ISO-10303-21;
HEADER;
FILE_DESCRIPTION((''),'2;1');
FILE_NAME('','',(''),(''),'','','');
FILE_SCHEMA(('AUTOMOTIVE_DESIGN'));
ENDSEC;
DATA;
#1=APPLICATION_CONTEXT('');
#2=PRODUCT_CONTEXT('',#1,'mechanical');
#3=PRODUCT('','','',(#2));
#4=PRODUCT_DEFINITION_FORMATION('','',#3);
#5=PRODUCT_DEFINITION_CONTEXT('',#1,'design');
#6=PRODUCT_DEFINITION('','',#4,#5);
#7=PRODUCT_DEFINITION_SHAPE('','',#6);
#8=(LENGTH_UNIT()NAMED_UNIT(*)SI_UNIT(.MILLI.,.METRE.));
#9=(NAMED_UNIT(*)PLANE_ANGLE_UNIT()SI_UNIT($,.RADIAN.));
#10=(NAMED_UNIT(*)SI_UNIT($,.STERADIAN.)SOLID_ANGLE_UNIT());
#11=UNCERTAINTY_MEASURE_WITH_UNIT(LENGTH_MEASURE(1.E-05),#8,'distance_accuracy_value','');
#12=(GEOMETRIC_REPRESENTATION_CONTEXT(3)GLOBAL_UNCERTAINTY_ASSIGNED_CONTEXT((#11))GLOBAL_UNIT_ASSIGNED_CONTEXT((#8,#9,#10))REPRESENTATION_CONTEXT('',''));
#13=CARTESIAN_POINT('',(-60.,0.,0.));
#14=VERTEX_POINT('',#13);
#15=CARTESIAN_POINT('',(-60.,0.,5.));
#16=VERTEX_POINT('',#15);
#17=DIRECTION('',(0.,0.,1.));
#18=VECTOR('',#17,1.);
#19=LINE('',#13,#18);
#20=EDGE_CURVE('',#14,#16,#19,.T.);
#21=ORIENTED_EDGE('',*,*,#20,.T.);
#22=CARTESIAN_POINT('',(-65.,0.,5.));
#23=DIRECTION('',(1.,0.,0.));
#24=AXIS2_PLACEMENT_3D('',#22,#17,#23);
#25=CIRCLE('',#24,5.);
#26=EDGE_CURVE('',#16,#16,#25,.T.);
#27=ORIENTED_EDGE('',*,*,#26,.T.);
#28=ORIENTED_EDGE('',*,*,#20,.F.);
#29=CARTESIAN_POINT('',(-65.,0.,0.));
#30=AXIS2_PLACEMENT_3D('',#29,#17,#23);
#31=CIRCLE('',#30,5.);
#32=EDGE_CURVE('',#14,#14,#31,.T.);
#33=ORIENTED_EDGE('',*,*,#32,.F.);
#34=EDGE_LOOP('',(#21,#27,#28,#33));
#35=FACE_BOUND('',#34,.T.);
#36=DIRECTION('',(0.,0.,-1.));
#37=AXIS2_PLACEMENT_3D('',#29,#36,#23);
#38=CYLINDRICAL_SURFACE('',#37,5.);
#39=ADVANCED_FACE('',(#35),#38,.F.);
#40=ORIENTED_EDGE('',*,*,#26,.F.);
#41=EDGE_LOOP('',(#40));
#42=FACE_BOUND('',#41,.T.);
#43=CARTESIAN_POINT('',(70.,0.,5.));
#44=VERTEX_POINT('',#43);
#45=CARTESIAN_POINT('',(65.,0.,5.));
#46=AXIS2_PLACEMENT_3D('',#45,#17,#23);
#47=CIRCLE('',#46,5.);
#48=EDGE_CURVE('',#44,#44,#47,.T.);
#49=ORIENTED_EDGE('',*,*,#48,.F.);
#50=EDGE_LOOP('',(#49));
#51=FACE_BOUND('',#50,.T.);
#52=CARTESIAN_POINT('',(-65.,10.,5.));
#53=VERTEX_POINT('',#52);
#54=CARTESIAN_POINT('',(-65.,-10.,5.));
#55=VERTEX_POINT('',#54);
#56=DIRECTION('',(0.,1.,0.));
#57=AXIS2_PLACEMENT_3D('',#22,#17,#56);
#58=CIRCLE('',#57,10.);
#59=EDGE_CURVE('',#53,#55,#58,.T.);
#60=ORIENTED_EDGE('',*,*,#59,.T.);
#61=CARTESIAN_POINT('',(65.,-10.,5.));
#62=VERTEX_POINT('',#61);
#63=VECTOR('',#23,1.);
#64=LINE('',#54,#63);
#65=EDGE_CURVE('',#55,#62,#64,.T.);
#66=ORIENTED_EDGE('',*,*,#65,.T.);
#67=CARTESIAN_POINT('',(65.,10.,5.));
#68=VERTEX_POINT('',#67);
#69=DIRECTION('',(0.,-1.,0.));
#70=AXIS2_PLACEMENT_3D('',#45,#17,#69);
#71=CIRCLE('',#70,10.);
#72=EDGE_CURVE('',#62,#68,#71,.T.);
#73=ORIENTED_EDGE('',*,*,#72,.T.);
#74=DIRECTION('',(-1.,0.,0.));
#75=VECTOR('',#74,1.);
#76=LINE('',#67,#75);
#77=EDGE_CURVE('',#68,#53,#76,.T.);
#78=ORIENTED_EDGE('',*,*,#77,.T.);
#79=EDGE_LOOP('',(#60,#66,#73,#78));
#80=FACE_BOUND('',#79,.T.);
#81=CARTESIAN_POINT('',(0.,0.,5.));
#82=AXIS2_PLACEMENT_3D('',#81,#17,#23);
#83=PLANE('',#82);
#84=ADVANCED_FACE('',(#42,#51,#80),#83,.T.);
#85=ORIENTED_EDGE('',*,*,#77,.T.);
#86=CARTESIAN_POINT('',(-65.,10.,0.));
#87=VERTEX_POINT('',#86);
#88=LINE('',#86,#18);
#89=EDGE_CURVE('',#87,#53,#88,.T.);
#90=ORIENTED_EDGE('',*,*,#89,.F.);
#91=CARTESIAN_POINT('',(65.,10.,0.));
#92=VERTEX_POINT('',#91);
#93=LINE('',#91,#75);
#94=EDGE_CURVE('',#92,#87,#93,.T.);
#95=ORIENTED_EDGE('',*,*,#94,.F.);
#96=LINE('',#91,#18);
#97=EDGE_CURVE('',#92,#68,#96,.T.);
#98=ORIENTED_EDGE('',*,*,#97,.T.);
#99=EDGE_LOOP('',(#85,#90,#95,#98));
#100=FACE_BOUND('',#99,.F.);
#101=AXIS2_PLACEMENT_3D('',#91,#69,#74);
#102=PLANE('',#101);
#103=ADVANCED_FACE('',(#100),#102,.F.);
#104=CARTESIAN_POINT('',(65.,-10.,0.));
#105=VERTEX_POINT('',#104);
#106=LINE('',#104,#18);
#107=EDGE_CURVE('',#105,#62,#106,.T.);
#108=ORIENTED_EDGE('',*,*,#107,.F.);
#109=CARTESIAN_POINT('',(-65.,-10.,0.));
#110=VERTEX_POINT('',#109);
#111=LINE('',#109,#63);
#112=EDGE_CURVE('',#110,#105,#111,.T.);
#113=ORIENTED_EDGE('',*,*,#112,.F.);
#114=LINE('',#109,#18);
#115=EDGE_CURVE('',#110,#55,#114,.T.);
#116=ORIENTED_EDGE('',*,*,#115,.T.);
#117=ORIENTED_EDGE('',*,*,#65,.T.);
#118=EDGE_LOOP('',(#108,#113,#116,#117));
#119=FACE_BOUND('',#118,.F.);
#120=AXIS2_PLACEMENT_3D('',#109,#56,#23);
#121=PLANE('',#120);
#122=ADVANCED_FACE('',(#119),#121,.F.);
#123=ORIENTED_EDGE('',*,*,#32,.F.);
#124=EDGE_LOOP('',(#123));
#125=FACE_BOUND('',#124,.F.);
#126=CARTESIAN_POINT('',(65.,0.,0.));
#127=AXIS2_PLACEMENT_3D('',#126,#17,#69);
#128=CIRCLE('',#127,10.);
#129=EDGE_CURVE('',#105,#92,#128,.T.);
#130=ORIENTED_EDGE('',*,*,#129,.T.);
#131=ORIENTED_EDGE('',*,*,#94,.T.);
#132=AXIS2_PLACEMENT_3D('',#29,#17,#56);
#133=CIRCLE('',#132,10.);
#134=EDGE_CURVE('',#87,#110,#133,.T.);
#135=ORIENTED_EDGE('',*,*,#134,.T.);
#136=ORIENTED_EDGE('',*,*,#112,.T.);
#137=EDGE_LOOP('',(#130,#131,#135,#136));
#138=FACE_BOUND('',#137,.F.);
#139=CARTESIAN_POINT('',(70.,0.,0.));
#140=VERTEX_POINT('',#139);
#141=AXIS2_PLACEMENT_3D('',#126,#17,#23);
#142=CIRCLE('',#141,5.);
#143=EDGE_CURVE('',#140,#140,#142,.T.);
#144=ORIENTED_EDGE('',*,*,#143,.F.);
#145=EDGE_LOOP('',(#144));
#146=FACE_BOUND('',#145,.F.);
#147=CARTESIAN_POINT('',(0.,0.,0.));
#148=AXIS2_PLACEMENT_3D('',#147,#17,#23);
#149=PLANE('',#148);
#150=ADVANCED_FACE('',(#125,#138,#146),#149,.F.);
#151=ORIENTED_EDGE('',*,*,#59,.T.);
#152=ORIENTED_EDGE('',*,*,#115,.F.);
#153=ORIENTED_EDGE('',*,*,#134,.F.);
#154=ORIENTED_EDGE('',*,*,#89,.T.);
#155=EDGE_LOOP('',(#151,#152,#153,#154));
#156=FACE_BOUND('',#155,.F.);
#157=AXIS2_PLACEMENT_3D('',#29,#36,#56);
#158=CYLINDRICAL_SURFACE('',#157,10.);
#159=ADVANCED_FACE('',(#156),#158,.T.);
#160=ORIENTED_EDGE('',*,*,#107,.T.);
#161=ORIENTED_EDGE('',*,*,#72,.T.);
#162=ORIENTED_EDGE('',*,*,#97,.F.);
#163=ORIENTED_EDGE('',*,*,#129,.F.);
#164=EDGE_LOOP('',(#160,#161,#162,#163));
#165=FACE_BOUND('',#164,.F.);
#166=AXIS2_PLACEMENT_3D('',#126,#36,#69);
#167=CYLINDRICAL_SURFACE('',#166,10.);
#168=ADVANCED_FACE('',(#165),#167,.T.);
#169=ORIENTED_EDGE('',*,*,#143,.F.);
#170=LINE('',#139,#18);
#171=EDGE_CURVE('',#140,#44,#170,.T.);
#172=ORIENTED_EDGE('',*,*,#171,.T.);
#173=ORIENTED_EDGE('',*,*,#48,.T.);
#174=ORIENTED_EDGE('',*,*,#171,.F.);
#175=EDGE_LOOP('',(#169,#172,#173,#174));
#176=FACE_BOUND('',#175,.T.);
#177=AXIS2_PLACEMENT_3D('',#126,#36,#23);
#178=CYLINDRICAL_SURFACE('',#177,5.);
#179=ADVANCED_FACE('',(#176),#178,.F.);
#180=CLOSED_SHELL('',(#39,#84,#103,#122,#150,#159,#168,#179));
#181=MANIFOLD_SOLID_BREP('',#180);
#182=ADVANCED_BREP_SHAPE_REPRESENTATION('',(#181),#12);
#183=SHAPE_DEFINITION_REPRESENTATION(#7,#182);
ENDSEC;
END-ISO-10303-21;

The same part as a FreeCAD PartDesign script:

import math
import FreeCAD as App
import Part
import Sketcher

V = App.Vector
Q = App.Units.Quantity

doc = App.newDocument("Part")
body = doc.addObject("PartDesign::Body", "Body")

# Sketch on XY plane
sketch1 = body.newObject("Sketcher::SketchObject", "Sketch")
sketch1.AttachmentSupport = (doc.getObject("XY_Plane"), [""])
sketch1.MapMode = "FlatFace"
sketch1.addGeometry([
    Part.ArcOfCircle(Part.Circle(V(-65, 0, 0), V(0, 0, 1), 10), math.radians(90), math.radians(270)),  # 0
    Part.LineSegment(V(-65, -10, 0), V(65, -10, 0)),  # 1
    Part.ArcOfCircle(Part.Circle(V(65, 0, 0), V(0, 0, 1), 10), math.radians(-90), math.radians(90)),  # 2
    Part.LineSegment(V(65, 10, 0), V(-65, 10, 0)),  # 3
    Part.Circle(V(-65, 0, 0), V(0, 0, 1), 5),  # 4
    Part.Circle(V(65, 0, 0), V(0, 0, 1), 5),  # 5
], False)
sketch1.addConstraint([
    Sketcher.Constraint("Tangent", 0, 2, 1, 1),
    Sketcher.Constraint("Tangent", 1, 2, 2, 1),
    Sketcher.Constraint("Tangent", 2, 2, 3, 1),
    Sketcher.Constraint("Tangent", 3, 2, 0, 1),
    Sketcher.Constraint("Horizontal", 1),
    Sketcher.Constraint("Horizontal", 3),
    Sketcher.Constraint("Coincident", 4, 3, 0, 3),
    Sketcher.Constraint("Coincident", 5, 3, 2, 3),
    Sketcher.Constraint("Equal", 4, 5),
    Sketcher.Constraint("Symmetric", 0, 3, 2, 3, -1, 1),
    Sketcher.Constraint("Diameter", 4, Q("10 mm")),
    Sketcher.Constraint("Radius", 0, Q("10 mm")),
    Sketcher.Constraint("DistanceX", 1, 1, 1, 2, Q("130 mm")),
])
pad1 = body.newObject("PartDesign::Pad", "Pad")
pad1.Profile = sketch1
pad1.Length = 5

doc.recompute()
